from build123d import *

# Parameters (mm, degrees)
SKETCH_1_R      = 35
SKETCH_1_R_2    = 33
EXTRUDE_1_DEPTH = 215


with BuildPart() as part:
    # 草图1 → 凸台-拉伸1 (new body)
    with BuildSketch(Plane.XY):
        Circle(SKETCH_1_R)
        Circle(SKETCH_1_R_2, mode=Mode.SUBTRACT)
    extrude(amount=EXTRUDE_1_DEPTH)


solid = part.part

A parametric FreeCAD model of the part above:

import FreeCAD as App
import Part
import Sketcher

V = App.Vector
Q = App.Units.Quantity

doc = App.newDocument("Part")
body = doc.addObject("PartDesign::Body", "Body")

# Sketch on XY plane
sketch1 = body.newObject("Sketcher::SketchObject", "Sketch")
sketch1.AttachmentSupport = (doc.getObject("XY_Plane"), [""])
sketch1.MapMode = "FlatFace"
sketch1.addGeometry([
    Part.Circle(V(0, 0, 0), V(0, 0, 1), 35),
    Part.Circle(V(0, 0, 0), V(0, 0, 1), 33),
], False)
sketch1.addConstraint([
    Sketcher.Constraint("Coincident", 0, 3, -1, 1),
    Sketcher.Constraint("Coincident", 1, 3, -1, 1),
    Sketcher.Constraint("Diameter", 0, Q("70 mm")),
    Sketcher.Constraint("Diameter", 1, Q("66 mm")),
])
pad1 = body.newObject("PartDesign::Pad", "Pad")
pad1.Profile = sketch1
pad1.Length = 215

doc.recompute()
